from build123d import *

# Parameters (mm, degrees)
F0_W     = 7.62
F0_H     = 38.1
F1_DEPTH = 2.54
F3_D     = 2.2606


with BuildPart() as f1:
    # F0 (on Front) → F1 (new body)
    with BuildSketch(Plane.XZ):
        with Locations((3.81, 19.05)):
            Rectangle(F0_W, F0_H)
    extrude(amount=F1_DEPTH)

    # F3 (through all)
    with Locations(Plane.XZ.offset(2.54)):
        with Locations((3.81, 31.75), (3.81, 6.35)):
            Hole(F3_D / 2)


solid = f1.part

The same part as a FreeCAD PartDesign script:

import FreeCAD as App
import Part
import Sketcher

V = App.Vector
Q = App.Units.Quantity

doc = App.newDocument("Part")
params = doc.addObject("Spreadsheet::Sheet", "Params")
for row, (alias, value) in enumerate([
    ("sketch1_width", "0.3 in"),
    ("sketch1_height", "1.5 in"),
    ("pad1_length", "0.1 in"),
    ("sketch2_diameter", "0.089 in"),
    ("hole_diameter", "0.089 in"),
], start=1):
    params.set(f"A{row}", alias)
    params.set(f"B{row}", "=" + value)
    params.setAlias(f"B{row}", alias)

body = doc.addObject("PartDesign::Body", "Body")

sketch1 = body.newObject("Sketcher::SketchObject", "Sketch")
sketch1.AttachmentSupport = (doc.getObject("XZ_Plane"), [""])
sketch1.MapMode = "FlatFace"
sketch1.addGeometry([
    Part.LineSegment(V(0, 38.1, 0), V(0, 0, 0)),
    Part.LineSegment(V(0, 0, 0), V(7.62, 0, 0)),
    Part.LineSegment(V(7.62, 0, 0), V(7.62, 38.1, 0)),
    Part.LineSegment(V(7.62, 38.1, 0), V(0, 38.1, 0)),
], False)
sketch1.addConstraint([
    Sketcher.Constraint("Coincident", 0, 2, 1, 1),
    Sketcher.Constraint("Coincident", 1, 2, 2, 1),
    Sketcher.Constraint("Coincident", 2, 2, 3, 1),
    Sketcher.Constraint("Coincident", 3, 2, 0, 1),
    Sketcher.Constraint("Vertical", 0),
    Sketcher.Constraint("Horizontal", 1),
    Sketcher.Constraint("Vertical", 2),
    Sketcher.Constraint("Horizontal", 3),
    Sketcher.Constraint("Coincident", 0, 2, -1, 1),
    Sketcher.Constraint("DistanceX", 1, 1, 1, 2, Q("0.3 in")),
    Sketcher.Constraint("DistanceY", 0, 2, 0, 1, Q("1.5 in")),
])
sketch1.setExpression("Constraints[9]", "Params.sketch1_width")
sketch1.setExpression("Constraints[10]", "Params.sketch1_height")
pad1 = body.newObject("PartDesign::Pad", "Pad")
pad1.Profile = sketch1
pad1.setExpression("Length", "Params.pad1_length")

sketch2 = body.newObject("Sketcher::SketchObject", "Sketch001")
sketch2.AttachmentSupport = (doc.getObject("XZ_Plane"), [""])
sketch2.MapMode = "FlatFace"
sketch2.AttachmentOffset = App.Placement(V(0, 0, 0.1 * 25.4), App.Rotation())
sketch2.addGeometry([
    Part.Circle(V(3.81, 31.75, 0), V(0, 0, 1), 1.1303),
    Part.Circle(V(3.81, 6.35, 0), V(0, 0, 1), 1.1303),
], False)
sketch2.addConstraint([
    Sketcher.Constraint("Equal", 0, 1),
    Sketcher.Constraint("Vertical", 0, 3, 1, 3),
    Sketcher.Constraint("Diameter", 0, Q("0.089 in")),
    Sketcher.Constraint("DistanceY", 1, 3, 0, 3, Q("1 in")),
    Sketcher.Constraint("DistanceX", -1, 1, 0, 3, Q("0.15 in")),
    Sketcher.Constraint("DistanceY", -1, 1, 0, 3, Q("1.25 in")),
])
sketch2.setExpression("Constraints[2]", "Params.sketch2_diameter")
doc.recompute()
hole = body.newObject("PartDesign::Hole", "Hole")
hole.Profile = sketch2
hole.ThreadType = "None"
hole.setExpression("Diameter", "Params.hole_diameter")
hole.DepthType = "ThroughAll"

doc.recompute()
